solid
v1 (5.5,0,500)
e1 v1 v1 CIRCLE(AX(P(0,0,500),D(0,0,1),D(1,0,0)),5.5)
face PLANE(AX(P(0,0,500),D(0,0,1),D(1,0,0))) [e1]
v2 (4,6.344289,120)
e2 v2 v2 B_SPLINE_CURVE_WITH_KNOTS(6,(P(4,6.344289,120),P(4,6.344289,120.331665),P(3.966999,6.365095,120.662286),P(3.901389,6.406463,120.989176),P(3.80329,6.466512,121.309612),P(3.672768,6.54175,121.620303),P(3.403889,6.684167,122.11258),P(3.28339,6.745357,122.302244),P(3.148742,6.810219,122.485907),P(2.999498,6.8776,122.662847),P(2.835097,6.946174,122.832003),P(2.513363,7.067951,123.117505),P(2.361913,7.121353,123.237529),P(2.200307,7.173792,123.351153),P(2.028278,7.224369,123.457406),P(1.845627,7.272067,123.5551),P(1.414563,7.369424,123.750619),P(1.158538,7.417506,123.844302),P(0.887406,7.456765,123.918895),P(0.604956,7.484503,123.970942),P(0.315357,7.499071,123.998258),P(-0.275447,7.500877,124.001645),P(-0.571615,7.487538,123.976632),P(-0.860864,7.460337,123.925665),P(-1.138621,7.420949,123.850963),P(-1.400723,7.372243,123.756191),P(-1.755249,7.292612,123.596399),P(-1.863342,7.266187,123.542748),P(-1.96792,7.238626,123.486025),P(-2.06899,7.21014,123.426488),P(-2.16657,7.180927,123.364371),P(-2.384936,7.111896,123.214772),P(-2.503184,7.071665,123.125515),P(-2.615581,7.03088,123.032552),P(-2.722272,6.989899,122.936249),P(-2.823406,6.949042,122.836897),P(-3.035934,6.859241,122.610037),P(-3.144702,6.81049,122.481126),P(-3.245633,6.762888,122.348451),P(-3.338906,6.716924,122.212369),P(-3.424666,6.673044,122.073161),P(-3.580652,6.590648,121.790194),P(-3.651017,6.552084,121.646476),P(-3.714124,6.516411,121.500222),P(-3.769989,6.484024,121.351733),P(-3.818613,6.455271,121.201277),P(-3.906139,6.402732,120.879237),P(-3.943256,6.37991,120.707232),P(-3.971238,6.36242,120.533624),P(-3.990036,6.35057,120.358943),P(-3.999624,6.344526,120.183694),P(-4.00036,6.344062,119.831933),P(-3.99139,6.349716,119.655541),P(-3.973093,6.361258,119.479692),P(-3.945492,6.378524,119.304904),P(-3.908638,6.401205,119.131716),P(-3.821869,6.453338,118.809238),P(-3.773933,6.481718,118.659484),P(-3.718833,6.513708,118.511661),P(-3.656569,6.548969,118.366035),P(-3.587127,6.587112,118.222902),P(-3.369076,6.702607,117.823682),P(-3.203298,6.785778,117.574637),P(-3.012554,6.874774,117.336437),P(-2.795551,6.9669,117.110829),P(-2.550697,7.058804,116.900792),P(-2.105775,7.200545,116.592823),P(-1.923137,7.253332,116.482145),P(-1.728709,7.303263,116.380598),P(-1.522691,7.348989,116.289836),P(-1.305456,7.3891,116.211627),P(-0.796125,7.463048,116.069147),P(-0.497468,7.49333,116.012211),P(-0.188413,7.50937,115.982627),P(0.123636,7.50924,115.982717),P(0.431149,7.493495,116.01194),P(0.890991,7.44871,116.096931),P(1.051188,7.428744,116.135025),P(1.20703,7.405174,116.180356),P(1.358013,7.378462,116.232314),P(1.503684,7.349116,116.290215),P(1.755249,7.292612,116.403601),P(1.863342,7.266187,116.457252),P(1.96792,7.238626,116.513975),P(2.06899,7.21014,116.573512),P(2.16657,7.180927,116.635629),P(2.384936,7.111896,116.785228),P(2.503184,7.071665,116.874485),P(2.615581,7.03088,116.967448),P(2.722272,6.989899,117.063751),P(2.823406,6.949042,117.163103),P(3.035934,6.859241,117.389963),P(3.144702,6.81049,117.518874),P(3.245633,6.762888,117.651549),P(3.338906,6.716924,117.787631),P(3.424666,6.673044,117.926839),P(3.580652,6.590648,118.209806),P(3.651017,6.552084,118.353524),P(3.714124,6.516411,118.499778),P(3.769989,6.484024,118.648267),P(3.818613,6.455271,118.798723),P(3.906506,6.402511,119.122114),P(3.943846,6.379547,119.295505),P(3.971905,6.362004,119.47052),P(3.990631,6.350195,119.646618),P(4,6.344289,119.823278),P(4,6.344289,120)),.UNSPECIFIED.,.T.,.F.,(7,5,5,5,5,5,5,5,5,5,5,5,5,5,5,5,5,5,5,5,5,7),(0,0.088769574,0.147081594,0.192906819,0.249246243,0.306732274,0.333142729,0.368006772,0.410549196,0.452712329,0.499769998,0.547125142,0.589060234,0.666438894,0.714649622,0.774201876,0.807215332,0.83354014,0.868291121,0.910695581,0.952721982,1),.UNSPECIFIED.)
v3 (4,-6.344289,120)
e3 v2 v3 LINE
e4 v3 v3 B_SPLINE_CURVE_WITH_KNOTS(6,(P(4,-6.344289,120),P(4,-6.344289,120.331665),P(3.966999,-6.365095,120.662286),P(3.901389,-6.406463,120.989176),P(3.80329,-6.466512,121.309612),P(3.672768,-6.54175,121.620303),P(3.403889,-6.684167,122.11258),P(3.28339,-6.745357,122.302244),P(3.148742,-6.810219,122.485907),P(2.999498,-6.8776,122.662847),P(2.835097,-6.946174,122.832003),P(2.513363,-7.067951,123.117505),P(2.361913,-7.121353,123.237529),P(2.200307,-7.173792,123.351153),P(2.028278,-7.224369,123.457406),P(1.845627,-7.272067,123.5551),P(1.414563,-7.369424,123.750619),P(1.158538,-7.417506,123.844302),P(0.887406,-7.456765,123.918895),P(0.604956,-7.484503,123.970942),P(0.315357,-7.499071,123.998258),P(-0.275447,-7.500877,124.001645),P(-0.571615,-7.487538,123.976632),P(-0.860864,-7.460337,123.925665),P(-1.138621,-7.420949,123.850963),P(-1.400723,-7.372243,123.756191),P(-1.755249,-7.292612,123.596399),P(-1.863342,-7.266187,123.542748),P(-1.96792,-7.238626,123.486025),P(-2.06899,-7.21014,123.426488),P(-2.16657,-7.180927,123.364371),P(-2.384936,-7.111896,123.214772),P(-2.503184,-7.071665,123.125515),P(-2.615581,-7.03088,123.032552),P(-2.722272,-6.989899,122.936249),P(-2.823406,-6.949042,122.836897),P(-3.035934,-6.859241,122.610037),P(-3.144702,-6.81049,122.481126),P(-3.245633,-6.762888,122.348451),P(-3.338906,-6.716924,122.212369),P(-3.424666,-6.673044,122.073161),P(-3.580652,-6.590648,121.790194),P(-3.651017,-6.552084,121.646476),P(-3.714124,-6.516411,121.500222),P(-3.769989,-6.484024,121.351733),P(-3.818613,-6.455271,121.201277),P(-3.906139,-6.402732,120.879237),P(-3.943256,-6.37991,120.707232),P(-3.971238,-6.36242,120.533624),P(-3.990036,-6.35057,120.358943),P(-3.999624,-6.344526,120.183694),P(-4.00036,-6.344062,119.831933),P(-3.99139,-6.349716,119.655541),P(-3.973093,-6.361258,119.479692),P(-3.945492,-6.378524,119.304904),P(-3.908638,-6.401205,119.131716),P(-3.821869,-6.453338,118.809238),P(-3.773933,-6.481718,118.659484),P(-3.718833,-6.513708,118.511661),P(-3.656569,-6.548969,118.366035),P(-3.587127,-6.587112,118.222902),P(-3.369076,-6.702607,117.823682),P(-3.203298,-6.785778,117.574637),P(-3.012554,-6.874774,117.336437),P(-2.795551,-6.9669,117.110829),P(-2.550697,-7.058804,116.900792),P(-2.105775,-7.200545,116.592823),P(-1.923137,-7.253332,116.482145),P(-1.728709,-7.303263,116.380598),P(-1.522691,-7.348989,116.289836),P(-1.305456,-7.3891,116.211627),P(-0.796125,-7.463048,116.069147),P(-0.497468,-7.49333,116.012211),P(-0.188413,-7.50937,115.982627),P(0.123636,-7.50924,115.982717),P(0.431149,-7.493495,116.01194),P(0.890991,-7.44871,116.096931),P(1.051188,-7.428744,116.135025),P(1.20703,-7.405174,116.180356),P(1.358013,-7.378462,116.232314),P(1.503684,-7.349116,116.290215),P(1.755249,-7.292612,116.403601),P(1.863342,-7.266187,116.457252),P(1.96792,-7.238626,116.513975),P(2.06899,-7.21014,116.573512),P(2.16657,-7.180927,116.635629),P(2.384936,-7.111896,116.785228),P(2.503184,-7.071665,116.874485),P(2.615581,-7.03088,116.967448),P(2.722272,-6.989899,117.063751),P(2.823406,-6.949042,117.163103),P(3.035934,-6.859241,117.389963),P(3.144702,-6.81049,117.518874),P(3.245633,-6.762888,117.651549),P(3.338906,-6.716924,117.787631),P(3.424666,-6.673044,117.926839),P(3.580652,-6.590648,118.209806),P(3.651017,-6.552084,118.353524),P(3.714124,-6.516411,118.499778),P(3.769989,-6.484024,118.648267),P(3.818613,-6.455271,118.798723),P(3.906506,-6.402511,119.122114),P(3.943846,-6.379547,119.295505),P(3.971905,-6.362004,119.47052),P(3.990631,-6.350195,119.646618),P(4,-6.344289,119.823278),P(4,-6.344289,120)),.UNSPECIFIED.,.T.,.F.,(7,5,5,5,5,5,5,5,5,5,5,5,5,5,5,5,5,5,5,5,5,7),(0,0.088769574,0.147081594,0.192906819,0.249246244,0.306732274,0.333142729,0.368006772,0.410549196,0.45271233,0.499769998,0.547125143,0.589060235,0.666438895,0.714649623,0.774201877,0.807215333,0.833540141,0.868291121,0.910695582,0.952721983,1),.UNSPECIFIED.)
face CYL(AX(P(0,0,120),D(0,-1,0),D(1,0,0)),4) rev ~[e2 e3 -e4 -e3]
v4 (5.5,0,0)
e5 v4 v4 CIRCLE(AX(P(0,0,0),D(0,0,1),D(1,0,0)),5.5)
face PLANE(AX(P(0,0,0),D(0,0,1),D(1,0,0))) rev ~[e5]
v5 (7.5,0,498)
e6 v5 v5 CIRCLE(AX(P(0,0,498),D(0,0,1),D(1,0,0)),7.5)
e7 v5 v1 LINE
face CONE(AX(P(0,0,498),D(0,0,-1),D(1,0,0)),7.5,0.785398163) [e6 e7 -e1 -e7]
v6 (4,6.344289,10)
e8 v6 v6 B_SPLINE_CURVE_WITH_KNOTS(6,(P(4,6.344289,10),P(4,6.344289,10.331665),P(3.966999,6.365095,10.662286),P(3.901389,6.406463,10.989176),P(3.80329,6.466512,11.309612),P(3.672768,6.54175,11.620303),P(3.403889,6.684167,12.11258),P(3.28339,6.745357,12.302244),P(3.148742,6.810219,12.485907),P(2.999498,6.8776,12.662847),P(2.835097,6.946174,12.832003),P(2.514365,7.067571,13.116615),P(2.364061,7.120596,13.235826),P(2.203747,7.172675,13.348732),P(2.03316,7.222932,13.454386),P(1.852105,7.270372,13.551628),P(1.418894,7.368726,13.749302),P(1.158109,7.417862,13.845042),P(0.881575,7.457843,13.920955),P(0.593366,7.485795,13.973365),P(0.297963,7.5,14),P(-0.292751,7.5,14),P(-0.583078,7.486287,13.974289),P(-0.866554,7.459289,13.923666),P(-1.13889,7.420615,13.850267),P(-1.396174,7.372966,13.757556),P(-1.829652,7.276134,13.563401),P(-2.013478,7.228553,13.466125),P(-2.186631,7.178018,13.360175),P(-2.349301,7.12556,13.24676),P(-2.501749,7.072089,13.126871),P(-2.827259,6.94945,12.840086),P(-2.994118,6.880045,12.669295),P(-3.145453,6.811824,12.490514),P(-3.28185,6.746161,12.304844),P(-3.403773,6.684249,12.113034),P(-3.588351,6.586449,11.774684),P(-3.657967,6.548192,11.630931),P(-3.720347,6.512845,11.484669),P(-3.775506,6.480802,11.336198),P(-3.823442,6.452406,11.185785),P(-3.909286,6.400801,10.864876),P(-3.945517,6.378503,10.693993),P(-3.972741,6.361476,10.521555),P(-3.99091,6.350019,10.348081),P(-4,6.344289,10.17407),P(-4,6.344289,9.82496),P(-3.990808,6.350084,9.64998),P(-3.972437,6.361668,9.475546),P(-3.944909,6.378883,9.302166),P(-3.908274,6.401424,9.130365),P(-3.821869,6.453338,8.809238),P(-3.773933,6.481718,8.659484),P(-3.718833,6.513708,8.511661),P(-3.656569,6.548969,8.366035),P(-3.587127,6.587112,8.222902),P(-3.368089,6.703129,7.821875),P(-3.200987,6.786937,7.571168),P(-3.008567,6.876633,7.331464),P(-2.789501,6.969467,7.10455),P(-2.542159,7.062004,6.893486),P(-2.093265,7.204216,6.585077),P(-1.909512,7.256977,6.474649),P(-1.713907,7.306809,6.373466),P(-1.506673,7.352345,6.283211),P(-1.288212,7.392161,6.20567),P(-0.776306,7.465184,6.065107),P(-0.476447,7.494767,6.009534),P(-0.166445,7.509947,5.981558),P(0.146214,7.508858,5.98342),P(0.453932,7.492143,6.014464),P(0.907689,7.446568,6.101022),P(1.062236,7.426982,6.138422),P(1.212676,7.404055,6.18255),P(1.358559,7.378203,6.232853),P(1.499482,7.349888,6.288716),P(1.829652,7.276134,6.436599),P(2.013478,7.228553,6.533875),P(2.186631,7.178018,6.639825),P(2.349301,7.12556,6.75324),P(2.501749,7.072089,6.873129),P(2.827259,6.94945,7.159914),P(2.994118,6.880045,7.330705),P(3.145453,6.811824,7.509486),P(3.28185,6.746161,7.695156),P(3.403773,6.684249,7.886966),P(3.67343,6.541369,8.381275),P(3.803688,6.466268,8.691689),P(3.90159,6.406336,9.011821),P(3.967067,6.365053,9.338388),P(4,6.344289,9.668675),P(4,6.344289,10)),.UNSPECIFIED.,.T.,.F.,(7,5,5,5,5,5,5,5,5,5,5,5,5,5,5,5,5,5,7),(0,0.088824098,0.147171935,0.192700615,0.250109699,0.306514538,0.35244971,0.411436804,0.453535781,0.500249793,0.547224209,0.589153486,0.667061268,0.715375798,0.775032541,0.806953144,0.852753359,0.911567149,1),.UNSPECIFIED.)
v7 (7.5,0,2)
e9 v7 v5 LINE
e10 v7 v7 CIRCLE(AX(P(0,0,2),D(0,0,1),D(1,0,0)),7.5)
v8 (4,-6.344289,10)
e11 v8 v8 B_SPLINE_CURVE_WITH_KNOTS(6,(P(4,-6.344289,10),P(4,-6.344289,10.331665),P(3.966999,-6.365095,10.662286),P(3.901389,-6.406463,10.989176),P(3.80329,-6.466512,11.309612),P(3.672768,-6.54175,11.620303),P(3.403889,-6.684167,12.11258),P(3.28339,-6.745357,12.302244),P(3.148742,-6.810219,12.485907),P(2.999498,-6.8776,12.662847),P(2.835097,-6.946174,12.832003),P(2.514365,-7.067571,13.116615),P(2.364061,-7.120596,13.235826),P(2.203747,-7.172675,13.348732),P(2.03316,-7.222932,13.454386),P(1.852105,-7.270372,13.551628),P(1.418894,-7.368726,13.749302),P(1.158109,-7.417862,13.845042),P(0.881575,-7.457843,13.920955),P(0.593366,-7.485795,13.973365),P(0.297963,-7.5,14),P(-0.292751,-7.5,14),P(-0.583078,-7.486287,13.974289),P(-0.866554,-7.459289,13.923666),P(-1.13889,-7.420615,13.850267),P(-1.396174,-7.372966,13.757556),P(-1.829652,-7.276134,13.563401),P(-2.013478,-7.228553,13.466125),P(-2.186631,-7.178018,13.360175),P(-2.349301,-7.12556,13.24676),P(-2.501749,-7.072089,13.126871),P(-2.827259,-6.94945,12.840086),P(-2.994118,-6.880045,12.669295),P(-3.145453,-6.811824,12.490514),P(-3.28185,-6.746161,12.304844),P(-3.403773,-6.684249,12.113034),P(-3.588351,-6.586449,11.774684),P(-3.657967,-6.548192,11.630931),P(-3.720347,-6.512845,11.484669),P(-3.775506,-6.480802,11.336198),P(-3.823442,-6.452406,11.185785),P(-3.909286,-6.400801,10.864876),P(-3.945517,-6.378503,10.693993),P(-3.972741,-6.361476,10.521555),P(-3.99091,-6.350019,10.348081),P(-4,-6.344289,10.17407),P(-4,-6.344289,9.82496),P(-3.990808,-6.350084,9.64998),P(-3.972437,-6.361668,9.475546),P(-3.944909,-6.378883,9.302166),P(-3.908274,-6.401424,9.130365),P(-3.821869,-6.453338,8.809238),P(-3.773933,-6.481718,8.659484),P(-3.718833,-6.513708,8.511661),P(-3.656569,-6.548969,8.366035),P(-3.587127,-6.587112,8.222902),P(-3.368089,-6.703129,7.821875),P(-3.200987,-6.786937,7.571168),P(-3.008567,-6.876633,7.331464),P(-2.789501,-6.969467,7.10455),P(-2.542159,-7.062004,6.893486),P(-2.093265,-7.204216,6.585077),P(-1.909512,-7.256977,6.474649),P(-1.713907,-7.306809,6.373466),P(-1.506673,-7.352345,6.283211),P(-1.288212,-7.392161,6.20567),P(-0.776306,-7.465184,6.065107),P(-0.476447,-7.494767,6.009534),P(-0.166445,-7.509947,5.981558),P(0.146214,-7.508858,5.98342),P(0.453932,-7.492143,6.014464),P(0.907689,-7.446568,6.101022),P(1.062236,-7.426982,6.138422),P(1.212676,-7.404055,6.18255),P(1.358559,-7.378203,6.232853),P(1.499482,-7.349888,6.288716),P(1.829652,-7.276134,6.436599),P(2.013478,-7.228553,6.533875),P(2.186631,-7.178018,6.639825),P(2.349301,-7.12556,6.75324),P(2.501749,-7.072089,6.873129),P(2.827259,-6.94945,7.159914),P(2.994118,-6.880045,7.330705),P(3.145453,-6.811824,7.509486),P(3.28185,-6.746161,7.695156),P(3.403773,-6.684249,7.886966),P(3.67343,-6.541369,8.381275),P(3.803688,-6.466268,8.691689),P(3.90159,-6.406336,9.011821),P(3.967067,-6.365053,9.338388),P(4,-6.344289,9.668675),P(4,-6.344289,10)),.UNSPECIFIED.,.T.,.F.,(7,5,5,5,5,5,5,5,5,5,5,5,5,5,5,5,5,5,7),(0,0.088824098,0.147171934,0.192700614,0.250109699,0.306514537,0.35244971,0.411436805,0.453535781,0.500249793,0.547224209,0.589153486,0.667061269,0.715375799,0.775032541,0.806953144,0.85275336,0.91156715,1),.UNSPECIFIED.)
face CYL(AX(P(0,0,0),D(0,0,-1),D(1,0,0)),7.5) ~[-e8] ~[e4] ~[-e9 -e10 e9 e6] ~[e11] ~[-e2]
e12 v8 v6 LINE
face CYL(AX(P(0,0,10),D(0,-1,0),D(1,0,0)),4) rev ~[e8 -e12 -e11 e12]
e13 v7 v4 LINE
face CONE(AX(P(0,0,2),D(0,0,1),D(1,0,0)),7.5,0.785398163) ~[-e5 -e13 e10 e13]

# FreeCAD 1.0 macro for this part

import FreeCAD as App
import Part
import Sketcher
from FreeCAD import Vector


def edges_at(feature, points):
    """Names of the edges that pass closest to the given points."""
    edges = feature.Shape.Edges
    near = lambda p: min(range(len(edges)), key=lambda i: edges[i].distToShape(Part.Vertex(*p))[0])
    return sorted({f"Edge{near(p) + 1}" for p in points})

doc = App.newDocument("Part")
body = doc.addObject("PartDesign::Body", "Body")

# Sketch on XY plane
sketch1 = doc.addObject("Sketcher::SketchObject", "Sketch")
body.addObject(sketch1)
sketch1.AttachmentSupport = (doc.XY_Plane, [""])
sketch1.MapMode = "FlatFace"
sketch1.addGeometry(Part.Circle(Vector(0, 0, 0), Vector(0, 0, 1), 8), False)
sketch1.addConstraint([
    Sketcher.Constraint("Coincident", 0, 3, -1, 1),
    Sketcher.Constraint("Diameter", 0, 15.0),
])
pad1 = doc.addObject("PartDesign::Pad", "Pad")
body.addObject(pad1)
pad1.Profile = sketch1
pad1.Length = 500
doc.recompute()

chamfer = doc.addObject("PartDesign::Chamfer", "Chamfer")
body.addObject(chamfer)
chamfer.Base = (pad1, edges_at(pad1, [(-7.5, 0, 0), (-7.5, 0, 500)]))
chamfer.Size = 2

# Sketch on XZ plane
sketch2 = doc.addObject("Sketcher::SketchObject", "Sketch001")
body.addObject(sketch2)
sketch2.AttachmentSupport = (doc.XZ_Plane, [""])
sketch2.MapMode = "FlatFace"
sketch2.addGeometry([
    Part.Circle(Vector(0, 10, 0), Vector(0, 0, 1), 4),
    Part.Circle(Vector(0, 120, 0), Vector(0, 0, 1), 4),
], False)
sketch2.addConstraint([
    Sketcher.Constraint("Equal", 0, 1),
    Sketcher.Constraint("PointOnObject", 0, 3, -2),
    Sketcher.Constraint("PointOnObject", 1, 3, -2),
    Sketcher.Constraint("Diameter", 0, 8.0),
    Sketcher.Constraint("DistanceY", -1, 1, 0, 3, 10.0),
    Sketcher.Constraint("DistanceY", -1, 1, 1, 3, 120.0),
])
pocket1 = doc.addObject("PartDesign::Pocket", "Pocket")
body.addObject(pocket1)
pocket1.Profile = sketch2
pocket1.Length = 20
pocket1.Midplane = True

doc.recompute()
